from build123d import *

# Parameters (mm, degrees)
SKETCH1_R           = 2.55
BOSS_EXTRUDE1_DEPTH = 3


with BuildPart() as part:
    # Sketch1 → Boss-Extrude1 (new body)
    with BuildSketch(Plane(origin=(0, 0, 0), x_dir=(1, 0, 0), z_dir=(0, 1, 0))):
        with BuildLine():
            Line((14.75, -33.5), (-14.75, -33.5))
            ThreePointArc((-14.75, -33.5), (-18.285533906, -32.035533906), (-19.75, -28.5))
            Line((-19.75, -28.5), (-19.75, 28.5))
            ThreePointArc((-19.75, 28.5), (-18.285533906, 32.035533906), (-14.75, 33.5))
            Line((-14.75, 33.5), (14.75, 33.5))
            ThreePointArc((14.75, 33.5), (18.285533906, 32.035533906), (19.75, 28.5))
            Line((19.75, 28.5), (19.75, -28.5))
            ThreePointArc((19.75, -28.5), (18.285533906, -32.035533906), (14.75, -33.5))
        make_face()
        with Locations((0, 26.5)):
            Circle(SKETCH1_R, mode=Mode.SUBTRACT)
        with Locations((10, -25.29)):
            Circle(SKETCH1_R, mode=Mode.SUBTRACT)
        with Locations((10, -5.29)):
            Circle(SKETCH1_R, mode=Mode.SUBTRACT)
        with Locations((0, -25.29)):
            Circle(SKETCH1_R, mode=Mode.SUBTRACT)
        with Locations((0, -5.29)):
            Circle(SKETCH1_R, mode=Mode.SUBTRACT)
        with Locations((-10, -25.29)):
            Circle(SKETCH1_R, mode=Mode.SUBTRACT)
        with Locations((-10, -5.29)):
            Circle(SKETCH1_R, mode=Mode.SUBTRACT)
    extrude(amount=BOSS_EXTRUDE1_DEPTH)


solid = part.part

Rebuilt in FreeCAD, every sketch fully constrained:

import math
import FreeCAD as App
import Part
import Sketcher
Q = App.Units.Quantity

doc = App.newDocument("Part")
body = doc.addObject("PartDesign::Body", "Body")

sketch1 = body.newObject("Sketcher::SketchObject", "Sketch")
sketch1.AttachmentSupport = (doc.getObject("XZ_Plane"), [""])
sketch1.MapMode = "FlatFace"
sketch1.addGeometry([
    Part.LineSegment(App.Vector(-14.8, 33.5, 0), App.Vector(14.8, 33.5, 0)),
    Part.ArcOfCircle(Part.Circle(App.Vector(14.8, 28.5, 0), App.Vector(0, 0, 1), 5), math.radians(0), math.radians(90)),
    Part.LineSegment(App.Vector(19.8, 28.5, 0), App.Vector(19.8, -28.5, 0)),
    Part.ArcOfCircle(Part.Circle(App.Vector(14.8, -28.5, 0), App.Vector(0, 0, 1), 5), math.radians(-90), math.radians(0)),
    Part.LineSegment(App.Vector(14.8, -33.5, 0), App.Vector(-14.8, -33.5, 0)),
    Part.ArcOfCircle(Part.Circle(App.Vector(-14.8, -28.5, 0), App.Vector(0, 0, 1), 5), math.radians(180), math.radians(270)),
    Part.LineSegment(App.Vector(-19.8, -28.5, 0), App.Vector(-19.8, 28.5, 0)),
    Part.ArcOfCircle(Part.Circle(App.Vector(-14.8, 28.5, 0), App.Vector(0, 0, 1), 5), math.radians(90), math.radians(180)),
    Part.Circle(App.Vector(10, 25.3, 0), App.Vector(0, 0, 1), 2.5),
    Part.Circle(App.Vector(10, 5.3, 0), App.Vector(0, 0, 1), 2.5),
    Part.Circle(App.Vector(0, 25.3, 0), App.Vector(0, 0, 1), 2.5),
    Part.Circle(App.Vector(-10, 25.3, 0), App.Vector(0, 0, 1), 2.5),
    Part.Circle(App.Vector(0, 5.3, 0), App.Vector(0, 0, 1), 2.5),
    Part.Circle(App.Vector(-10, 5.3, 0), App.Vector(0, 0, 1), 2.5),
    Part.Circle(App.Vector(0, -26.5, 0), App.Vector(0, 0, 1), 2.5),
], False)
sketch1.addConstraint([
    Sketcher.Constraint("Tangent", 0, 2, 1, 2),
    Sketcher.Constraint("Tangent", 1, 1, 2, 1),
    Sketcher.Constraint("Tangent", 2, 2, 3, 2),
    Sketcher.Constraint("Tangent", 3, 1, 4, 1),
    Sketcher.Constraint("Tangent", 4, 2, 5, 2),
    Sketcher.Constraint("Tangent", 5, 1, 6, 1),
    Sketcher.Constraint("Tangent", 6, 2, 7, 2),
    Sketcher.Constraint("Tangent", 7, 1, 0, 1),
    Sketcher.Constraint("Horizontal", 0),
    Sketcher.Constraint("Vertical", 2),
    Sketcher.Constraint("Horizontal", 4),
    Sketcher.Constraint("Vertical", 6),
    Sketcher.Constraint("Equal", 1, 3),
    Sketcher.Constraint("Equal", 3, 5),
    Sketcher.Constraint("Equal", 5, 7),
    Sketcher.Constraint("Equal", 8, 9),
    Sketcher.Constraint("Equal", 9, 10),
    Sketcher.Constraint("Equal", 10, 11),
    Sketcher.Constraint("Equal", 11, 12),
    Sketcher.Constraint("Equal", 12, 13),
    Sketcher.Constraint("Equal", 13, 14),
    Sketcher.Constraint("Symmetric", 1, 3, 5, 3, -1, 1),
    Sketcher.Constraint("Symmetric", 8, 3, 11, 3, -2),
    Sketcher.Constraint("Symmetric", 9, 3, 13, 3, -2),
    Sketcher.Constraint("PointOnObject", 10, 3, -2),
    Sketcher.Constraint("PointOnObject", 12, 3, -2),
    Sketcher.Constraint("PointOnObject", 14, 3, -2),
    Sketcher.Constraint("Horizontal", 8, 3, 10, 3),
    Sketcher.Constraint("Horizontal", 9, 3, 12, 3),
    Sketcher.Constraint("Vertical", 8, 3, 9, 3),
    Sketcher.Constraint("Radius", 1, Q("5 mm")),
    Sketcher.Constraint("Diameter", 8, Q("5.1 mm")),
    Sketcher.Constraint("DistanceY", 2, 2, 2, 1, Q("57 mm")),
    Sketcher.Constraint("DistanceX", 0, 1, 0, 2, Q("29.5 mm")),
    Sketcher.Constraint("DistanceX", -1, 1, 8, 3, Q("10 mm")),
    Sketcher.Constraint("DistanceY", 9, 3, 8, 3, Q("20 mm")),
    Sketcher.Constraint("DistanceY", 3, 3, 14, 3, Q("2 mm")),
    Sketcher.Constraint("DistanceY", -1, 1, 8, 3, Q("25.29 mm")),
])
pad1 = body.newObject("PartDesign::Pad", "Pad")
pad1.Profile = sketch1
pad1.Length = 3
pad1.Reversed = True

doc.recompute()
